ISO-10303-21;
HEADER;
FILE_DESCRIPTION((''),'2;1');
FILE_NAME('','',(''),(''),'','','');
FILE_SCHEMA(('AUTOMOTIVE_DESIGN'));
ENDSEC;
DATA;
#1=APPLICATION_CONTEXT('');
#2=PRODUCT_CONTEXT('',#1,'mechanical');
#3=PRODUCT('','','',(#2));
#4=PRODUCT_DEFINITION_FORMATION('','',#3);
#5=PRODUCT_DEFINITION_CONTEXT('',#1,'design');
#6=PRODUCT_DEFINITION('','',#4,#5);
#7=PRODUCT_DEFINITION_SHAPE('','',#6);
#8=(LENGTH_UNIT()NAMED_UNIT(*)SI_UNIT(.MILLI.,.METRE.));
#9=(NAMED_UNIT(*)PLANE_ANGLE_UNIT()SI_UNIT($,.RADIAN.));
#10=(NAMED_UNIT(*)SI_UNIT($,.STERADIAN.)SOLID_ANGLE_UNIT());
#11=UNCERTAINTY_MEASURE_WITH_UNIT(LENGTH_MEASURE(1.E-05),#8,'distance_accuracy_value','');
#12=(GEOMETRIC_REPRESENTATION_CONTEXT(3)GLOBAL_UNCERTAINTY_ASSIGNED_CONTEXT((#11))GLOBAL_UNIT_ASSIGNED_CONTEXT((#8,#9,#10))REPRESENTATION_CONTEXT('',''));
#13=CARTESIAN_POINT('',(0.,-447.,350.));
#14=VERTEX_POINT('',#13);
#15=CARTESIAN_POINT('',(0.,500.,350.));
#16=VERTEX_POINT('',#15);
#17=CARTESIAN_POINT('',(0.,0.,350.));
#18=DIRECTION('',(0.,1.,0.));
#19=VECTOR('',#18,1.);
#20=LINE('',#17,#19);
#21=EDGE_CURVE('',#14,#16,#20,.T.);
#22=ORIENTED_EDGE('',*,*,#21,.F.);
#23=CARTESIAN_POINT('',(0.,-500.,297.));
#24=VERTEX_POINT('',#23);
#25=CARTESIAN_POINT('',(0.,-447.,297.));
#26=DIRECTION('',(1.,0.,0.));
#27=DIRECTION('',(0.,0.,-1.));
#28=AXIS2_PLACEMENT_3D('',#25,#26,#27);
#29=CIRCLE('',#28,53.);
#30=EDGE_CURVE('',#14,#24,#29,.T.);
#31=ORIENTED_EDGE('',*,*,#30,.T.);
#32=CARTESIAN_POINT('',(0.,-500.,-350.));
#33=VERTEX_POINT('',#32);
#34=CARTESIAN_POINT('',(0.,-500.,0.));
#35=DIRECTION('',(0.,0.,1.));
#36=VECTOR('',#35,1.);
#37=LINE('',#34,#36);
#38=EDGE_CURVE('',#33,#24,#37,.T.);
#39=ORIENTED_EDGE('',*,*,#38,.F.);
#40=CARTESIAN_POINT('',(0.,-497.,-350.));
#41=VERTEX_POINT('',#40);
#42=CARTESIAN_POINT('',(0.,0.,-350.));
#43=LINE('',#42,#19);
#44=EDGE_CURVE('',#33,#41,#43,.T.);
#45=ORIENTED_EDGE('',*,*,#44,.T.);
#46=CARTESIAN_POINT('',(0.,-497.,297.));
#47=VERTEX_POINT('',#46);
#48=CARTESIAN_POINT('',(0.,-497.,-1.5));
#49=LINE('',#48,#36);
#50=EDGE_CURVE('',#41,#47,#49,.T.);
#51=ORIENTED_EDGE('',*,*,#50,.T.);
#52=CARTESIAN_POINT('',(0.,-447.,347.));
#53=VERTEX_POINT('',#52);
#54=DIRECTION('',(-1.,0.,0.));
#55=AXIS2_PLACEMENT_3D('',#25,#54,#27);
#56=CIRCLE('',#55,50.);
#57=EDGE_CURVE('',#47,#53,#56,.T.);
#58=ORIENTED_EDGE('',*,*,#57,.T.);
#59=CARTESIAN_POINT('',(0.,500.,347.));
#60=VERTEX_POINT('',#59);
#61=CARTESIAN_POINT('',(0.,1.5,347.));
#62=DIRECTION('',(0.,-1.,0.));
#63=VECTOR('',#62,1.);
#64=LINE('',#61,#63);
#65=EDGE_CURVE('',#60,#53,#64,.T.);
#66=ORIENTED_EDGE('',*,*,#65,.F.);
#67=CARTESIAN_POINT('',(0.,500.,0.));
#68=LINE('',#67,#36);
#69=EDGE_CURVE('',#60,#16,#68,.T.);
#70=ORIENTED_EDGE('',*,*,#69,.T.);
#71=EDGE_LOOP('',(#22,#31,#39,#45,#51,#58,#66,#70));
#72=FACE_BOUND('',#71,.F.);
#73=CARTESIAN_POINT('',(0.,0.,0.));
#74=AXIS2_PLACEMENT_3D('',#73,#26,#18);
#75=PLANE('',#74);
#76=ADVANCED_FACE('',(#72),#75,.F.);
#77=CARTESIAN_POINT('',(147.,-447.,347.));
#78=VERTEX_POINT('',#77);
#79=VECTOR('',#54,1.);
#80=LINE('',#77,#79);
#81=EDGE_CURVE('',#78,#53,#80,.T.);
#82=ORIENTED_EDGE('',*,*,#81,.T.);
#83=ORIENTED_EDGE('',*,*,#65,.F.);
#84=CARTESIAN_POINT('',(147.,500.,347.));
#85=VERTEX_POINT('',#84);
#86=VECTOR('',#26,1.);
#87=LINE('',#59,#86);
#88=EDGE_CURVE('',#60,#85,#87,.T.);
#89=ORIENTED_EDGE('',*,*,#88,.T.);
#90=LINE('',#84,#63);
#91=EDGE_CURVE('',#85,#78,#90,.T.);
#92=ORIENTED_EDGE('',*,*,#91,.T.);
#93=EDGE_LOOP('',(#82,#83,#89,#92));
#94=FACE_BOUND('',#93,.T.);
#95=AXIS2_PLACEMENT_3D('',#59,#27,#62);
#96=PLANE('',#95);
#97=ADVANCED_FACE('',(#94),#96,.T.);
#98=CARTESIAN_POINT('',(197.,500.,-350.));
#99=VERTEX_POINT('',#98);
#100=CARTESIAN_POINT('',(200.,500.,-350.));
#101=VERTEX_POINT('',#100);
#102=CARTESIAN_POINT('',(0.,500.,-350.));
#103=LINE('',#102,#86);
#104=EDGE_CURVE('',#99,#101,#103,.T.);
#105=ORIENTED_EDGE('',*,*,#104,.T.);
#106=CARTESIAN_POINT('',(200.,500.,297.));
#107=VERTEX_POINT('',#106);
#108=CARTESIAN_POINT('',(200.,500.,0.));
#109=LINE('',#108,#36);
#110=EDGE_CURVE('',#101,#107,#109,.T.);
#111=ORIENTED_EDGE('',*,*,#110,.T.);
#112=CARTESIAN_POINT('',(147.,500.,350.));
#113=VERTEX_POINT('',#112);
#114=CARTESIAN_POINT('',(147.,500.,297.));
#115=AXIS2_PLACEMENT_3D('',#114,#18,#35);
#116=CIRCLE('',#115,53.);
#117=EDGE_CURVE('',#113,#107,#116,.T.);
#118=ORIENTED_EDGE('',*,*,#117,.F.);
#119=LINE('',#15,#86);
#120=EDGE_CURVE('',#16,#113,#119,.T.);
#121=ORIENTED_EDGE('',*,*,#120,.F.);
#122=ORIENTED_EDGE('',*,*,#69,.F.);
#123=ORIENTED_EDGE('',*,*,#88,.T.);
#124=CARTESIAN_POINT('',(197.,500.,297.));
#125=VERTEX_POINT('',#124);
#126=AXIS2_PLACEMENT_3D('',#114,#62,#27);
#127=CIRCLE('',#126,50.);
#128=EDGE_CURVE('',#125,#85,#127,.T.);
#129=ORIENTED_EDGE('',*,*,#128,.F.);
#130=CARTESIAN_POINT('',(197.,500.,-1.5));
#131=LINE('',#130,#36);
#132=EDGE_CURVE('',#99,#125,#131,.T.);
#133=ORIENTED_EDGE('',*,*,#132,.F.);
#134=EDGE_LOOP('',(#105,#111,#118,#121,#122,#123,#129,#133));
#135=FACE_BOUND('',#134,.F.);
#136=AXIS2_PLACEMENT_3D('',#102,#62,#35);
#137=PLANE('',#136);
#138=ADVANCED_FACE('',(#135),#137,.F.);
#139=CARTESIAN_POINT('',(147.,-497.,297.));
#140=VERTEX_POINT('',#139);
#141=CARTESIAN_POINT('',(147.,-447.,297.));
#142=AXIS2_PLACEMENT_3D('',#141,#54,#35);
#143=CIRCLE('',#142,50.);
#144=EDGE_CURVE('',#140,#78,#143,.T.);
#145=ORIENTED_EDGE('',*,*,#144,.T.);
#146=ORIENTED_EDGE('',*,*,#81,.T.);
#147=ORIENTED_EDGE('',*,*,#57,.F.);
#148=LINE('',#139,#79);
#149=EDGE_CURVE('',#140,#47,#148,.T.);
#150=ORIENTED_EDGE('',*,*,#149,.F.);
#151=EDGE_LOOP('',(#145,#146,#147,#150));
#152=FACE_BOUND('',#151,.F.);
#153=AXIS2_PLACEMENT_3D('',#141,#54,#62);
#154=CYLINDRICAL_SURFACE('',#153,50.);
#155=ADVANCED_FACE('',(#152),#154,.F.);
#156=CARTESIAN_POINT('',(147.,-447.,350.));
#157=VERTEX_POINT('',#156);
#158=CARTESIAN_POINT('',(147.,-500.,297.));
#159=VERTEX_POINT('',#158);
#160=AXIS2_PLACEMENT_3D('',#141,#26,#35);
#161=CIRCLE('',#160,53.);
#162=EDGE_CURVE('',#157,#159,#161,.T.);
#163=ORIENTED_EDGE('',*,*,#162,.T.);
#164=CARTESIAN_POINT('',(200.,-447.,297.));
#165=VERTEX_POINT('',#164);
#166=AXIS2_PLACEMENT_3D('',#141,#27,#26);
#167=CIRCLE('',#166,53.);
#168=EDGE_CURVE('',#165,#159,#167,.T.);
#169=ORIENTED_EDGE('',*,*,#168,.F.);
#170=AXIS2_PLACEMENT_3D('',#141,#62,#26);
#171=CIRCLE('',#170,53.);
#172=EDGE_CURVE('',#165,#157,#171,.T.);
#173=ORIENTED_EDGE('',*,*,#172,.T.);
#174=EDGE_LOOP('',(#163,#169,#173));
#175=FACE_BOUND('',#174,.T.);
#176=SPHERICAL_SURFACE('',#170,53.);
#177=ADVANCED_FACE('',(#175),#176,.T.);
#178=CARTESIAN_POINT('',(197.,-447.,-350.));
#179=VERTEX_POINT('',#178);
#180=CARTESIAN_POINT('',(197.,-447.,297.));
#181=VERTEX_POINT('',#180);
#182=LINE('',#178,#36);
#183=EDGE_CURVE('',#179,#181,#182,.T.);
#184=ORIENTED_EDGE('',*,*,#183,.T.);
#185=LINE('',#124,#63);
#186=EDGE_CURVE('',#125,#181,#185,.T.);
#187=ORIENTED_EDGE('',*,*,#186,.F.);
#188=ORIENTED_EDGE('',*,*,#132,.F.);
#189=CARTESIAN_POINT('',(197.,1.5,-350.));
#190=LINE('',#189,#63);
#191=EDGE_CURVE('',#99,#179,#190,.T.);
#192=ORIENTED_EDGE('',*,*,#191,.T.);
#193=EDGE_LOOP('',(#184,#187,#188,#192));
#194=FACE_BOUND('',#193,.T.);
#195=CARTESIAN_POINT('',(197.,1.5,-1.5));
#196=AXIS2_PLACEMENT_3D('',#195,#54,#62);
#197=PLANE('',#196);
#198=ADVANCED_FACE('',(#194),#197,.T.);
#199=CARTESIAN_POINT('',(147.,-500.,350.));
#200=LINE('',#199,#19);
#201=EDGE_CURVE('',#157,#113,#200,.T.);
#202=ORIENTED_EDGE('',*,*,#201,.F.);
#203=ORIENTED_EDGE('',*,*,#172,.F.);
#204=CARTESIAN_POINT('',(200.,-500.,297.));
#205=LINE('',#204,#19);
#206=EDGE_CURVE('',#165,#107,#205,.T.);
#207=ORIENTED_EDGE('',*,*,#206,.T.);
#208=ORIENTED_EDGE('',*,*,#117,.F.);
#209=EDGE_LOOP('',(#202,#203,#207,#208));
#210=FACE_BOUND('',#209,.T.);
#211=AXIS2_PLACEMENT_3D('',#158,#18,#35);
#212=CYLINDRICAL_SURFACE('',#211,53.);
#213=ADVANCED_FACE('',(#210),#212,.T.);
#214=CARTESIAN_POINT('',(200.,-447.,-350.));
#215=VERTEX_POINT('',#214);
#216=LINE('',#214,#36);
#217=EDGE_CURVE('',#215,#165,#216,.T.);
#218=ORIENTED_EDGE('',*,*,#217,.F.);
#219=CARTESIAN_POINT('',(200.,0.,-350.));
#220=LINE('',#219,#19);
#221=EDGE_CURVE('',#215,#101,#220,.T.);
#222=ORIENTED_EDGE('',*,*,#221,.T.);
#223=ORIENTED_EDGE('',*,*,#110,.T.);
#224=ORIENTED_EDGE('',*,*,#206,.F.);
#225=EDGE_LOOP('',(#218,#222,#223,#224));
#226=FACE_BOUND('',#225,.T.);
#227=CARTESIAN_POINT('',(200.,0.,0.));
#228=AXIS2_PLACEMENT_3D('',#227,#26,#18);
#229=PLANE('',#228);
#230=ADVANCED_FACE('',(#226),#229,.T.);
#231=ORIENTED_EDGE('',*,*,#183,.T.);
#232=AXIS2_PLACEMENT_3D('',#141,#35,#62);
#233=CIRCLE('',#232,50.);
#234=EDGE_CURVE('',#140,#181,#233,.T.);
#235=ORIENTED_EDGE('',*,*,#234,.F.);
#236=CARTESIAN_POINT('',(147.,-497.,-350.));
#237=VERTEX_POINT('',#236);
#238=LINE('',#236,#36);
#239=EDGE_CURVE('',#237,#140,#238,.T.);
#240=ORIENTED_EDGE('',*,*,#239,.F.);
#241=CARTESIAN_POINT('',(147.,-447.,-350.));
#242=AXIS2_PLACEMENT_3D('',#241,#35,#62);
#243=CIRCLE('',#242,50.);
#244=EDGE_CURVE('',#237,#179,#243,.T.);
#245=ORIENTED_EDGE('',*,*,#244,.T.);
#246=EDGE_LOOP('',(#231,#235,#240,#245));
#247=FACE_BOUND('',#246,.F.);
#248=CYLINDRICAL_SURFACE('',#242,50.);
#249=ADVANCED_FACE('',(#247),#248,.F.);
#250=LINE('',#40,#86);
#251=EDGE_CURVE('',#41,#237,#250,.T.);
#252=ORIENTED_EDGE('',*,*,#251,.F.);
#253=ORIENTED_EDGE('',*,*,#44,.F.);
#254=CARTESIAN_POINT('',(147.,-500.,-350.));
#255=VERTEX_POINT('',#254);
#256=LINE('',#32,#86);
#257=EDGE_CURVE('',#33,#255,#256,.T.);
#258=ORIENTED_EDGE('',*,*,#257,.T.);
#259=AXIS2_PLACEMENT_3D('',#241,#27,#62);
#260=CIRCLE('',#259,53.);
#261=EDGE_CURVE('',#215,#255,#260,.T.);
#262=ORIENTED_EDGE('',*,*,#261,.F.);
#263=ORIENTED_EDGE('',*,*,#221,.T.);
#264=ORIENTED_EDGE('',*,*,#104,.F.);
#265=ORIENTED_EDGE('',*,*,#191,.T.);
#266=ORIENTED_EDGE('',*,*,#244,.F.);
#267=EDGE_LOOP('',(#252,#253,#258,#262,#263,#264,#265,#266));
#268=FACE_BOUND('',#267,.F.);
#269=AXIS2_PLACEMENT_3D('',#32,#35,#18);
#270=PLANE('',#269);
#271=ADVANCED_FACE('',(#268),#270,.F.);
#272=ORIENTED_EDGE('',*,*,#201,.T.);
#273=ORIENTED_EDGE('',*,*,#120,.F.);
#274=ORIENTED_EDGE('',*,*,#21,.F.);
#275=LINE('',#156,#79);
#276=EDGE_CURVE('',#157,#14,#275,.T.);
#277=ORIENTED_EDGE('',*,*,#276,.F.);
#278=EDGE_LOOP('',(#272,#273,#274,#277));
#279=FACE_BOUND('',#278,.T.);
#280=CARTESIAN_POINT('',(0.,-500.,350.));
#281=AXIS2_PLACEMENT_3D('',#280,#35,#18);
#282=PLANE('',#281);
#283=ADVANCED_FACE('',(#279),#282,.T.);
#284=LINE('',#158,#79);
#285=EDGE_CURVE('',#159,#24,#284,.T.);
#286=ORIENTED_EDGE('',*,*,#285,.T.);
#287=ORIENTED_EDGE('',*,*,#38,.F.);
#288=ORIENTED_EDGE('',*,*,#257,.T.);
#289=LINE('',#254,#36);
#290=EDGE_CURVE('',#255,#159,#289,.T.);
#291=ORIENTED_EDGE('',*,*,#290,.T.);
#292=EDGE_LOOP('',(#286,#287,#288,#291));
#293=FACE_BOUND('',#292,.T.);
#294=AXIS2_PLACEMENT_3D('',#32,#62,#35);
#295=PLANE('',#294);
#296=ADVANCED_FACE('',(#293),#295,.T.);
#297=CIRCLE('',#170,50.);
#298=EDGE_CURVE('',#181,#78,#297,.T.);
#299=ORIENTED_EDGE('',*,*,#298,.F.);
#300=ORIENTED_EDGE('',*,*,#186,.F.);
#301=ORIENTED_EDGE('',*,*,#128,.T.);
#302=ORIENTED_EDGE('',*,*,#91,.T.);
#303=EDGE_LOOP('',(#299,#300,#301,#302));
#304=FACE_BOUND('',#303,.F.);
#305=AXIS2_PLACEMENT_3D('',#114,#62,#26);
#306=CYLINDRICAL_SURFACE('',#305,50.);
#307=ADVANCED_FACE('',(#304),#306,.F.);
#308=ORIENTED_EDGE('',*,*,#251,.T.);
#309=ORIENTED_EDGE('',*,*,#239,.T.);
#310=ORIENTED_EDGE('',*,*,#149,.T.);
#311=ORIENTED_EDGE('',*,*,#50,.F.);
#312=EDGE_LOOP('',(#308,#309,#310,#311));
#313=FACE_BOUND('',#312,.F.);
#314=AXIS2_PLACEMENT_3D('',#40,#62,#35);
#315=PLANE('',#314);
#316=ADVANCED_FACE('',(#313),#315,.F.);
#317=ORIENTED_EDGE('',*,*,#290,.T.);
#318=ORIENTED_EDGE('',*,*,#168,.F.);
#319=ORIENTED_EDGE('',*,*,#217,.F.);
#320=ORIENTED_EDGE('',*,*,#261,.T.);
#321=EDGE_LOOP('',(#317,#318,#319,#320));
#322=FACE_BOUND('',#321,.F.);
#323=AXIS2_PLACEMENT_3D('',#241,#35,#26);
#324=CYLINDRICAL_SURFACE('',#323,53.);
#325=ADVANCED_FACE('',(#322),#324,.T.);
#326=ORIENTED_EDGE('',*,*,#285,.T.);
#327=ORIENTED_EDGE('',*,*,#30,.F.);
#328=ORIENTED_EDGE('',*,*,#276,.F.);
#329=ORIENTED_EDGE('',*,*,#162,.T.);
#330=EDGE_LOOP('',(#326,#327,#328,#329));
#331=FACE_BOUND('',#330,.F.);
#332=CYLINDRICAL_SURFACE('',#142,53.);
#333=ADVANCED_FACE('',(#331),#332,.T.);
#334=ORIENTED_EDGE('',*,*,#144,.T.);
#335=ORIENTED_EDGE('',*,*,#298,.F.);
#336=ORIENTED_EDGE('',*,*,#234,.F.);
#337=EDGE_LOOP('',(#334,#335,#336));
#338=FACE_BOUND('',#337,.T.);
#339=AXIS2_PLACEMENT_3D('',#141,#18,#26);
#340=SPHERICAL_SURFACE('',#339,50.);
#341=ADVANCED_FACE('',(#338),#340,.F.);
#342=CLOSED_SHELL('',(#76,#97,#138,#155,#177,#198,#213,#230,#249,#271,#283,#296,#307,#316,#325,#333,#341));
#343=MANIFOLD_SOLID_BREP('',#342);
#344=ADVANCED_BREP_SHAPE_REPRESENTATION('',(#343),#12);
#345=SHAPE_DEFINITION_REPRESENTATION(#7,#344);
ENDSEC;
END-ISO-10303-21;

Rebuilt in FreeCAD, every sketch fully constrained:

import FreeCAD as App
import Part
import Sketcher


def edges_at(feature, points):
    """Names of the edges that pass closest to the given points."""
    edges = feature.Shape.Edges
    near = lambda p: min(range(len(edges)), key=lambda i: edges[i].distToShape(Part.Vertex(*p))[0])
    return sorted({f"Edge{near(p) + 1}" for p in points})

doc = App.newDocument("Part")
body = doc.addObject("PartDesign::Body", "Body")

# Sketch on YZ plane
sketch1 = body.newObject("Sketcher::SketchObject", "Sketch")
sketch1.AttachmentSupport = (doc.getObject("YZ_Plane"), [""])
sketch1.MapMode = "FlatFace"
sketch1.addGeometry(Part.LineSegment(App.Vector(-500, 350, 0), App.Vector(-500, -350, 0)), False)
sketch1.addGeometry(Part.LineSegment(App.Vector(-500, -350, 0), App.Vector(500, -350, 0)), False)
sketch1.addGeometry(Part.LineSegment(App.Vector(500, -350, 0), App.Vector(500, 350, 0)), False)
sketch1.addGeometry(Part.LineSegment(App.Vector(500, 350, 0), App.Vector(-500, 350, 0)), False)
sketch1.addConstraint(Sketcher.Constraint("Coincident", 0, 2, 1, 1))
sketch1.addConstraint(Sketcher.Constraint("Coincident", 1, 2, 2, 1))
sketch1.addConstraint(Sketcher.Constraint("Coincident", 2, 2, 3, 1))
sketch1.addConstraint(Sketcher.Constraint("Coincident", 3, 2, 0, 1))
sketch1.addConstraint(Sketcher.Constraint("Vertical", 0))
sketch1.addConstraint(Sketcher.Constraint("Horizontal", 1))
sketch1.addConstraint(Sketcher.Constraint("Vertical", 2))
sketch1.addConstraint(Sketcher.Constraint("Horizontal", 3))
sketch1.addConstraint(Sketcher.Constraint("Symmetric", 0, 2, 2, 2, -1, 1))
sketch1.addConstraint(Sketcher.Constraint("DistanceX", 1, 1, 1, 2, 1000.0))
sketch1.addConstraint(Sketcher.Constraint("DistanceY", 0, 2, 0, 1, 700.0))
pad1 = body.newObject("PartDesign::Pad", "Pad")
pad1.Profile = sketch1
pad1.Length = 200

# Sketch on YZ plane
sketch2 = body.newObject("Sketcher::SketchObject", "Sketch001")
sketch2.AttachmentSupport = (doc.getObject("YZ_Plane"), [""])
sketch2.MapMode = "FlatFace"
sketch2.addGeometry(Part.LineSegment(App.Vector(500, 347, 0), App.Vector(500, -350, 0)), False)
sketch2.addGeometry(Part.LineSegment(App.Vector(500, -350, 0), App.Vector(-497, -350, 0)), False)
sketch2.addGeometry(Part.LineSegment(App.Vector(-497, -350, 0), App.Vector(-497, 347, 0)), False)
sketch2.addGeometry(Part.LineSegment(App.Vector(-497, 347, 0), App.Vector(500, 347, 0)), False)
sketch2.addConstraint(Sketcher.Constraint("Coincident", 0, 2, 1, 1))
sketch2.addConstraint(Sketcher.Constraint("Coincident", 1, 2, 2, 1))
sketch2.addConstraint(Sketcher.Constraint("Coincident", 2, 2, 3, 1))
sketch2.addConstraint(Sketcher.Constraint("Coincident", 3, 2, 0, 1))
sketch2.addConstraint(Sketcher.Constraint("Vertical", 0))
sketch2.addConstraint(Sketcher.Constraint("Horizontal", 1))
sketch2.addConstraint(Sketcher.Constraint("Vertical", 2))
sketch2.addConstraint(Sketcher.Constraint("Horizontal", 3))
sketch2.addConstraint(Sketcher.Constraint("DistanceX", 1, 2, 1, 1, 997.0))
sketch2.addConstraint(Sketcher.Constraint("DistanceY", 0, 2, 0, 1, 697.0))
sketch2.addConstraint(Sketcher.Constraint("DistanceX", -1, 1, 0, 2, 500.0))
sketch2.addConstraint(Sketcher.Constraint("DistanceY", 0, 2, -1, 1, 350.0))
pocket1 = body.newObject("PartDesign::Pocket", "Pocket")
pocket1.Profile = sketch2
pocket1.Length = 197
pocket1.Reversed = True
doc.recompute()

fillet = body.newObject("PartDesign::Fillet", "Fillet")
fillet.Base = (pocket1, edges_at(pocket1, [(197, 1.5, 347)]))
fillet.Radius = 50
doc.recompute()

fillet2 = body.newObject("PartDesign::Fillet", "Fillet001")
fillet2.Base = (fillet, edges_at(fillet, [(197, -497, -26.5)]))
fillet2.Radius = 50
doc.recompute()

fillet3 = body.newObject("PartDesign::Fillet", "Fillet002")
fillet3.Base = (fillet2, edges_at(fillet2, [(200, 0, 350)]))
fillet3.Radius = 53
doc.recompute()

fillet4 = body.newObject("PartDesign::Fillet", "Fillet003")
fillet4.Base = (fillet3, edges_at(fillet3, [(200, -500, -26.5)]))
fillet4.Radius = 53

doc.recompute()
